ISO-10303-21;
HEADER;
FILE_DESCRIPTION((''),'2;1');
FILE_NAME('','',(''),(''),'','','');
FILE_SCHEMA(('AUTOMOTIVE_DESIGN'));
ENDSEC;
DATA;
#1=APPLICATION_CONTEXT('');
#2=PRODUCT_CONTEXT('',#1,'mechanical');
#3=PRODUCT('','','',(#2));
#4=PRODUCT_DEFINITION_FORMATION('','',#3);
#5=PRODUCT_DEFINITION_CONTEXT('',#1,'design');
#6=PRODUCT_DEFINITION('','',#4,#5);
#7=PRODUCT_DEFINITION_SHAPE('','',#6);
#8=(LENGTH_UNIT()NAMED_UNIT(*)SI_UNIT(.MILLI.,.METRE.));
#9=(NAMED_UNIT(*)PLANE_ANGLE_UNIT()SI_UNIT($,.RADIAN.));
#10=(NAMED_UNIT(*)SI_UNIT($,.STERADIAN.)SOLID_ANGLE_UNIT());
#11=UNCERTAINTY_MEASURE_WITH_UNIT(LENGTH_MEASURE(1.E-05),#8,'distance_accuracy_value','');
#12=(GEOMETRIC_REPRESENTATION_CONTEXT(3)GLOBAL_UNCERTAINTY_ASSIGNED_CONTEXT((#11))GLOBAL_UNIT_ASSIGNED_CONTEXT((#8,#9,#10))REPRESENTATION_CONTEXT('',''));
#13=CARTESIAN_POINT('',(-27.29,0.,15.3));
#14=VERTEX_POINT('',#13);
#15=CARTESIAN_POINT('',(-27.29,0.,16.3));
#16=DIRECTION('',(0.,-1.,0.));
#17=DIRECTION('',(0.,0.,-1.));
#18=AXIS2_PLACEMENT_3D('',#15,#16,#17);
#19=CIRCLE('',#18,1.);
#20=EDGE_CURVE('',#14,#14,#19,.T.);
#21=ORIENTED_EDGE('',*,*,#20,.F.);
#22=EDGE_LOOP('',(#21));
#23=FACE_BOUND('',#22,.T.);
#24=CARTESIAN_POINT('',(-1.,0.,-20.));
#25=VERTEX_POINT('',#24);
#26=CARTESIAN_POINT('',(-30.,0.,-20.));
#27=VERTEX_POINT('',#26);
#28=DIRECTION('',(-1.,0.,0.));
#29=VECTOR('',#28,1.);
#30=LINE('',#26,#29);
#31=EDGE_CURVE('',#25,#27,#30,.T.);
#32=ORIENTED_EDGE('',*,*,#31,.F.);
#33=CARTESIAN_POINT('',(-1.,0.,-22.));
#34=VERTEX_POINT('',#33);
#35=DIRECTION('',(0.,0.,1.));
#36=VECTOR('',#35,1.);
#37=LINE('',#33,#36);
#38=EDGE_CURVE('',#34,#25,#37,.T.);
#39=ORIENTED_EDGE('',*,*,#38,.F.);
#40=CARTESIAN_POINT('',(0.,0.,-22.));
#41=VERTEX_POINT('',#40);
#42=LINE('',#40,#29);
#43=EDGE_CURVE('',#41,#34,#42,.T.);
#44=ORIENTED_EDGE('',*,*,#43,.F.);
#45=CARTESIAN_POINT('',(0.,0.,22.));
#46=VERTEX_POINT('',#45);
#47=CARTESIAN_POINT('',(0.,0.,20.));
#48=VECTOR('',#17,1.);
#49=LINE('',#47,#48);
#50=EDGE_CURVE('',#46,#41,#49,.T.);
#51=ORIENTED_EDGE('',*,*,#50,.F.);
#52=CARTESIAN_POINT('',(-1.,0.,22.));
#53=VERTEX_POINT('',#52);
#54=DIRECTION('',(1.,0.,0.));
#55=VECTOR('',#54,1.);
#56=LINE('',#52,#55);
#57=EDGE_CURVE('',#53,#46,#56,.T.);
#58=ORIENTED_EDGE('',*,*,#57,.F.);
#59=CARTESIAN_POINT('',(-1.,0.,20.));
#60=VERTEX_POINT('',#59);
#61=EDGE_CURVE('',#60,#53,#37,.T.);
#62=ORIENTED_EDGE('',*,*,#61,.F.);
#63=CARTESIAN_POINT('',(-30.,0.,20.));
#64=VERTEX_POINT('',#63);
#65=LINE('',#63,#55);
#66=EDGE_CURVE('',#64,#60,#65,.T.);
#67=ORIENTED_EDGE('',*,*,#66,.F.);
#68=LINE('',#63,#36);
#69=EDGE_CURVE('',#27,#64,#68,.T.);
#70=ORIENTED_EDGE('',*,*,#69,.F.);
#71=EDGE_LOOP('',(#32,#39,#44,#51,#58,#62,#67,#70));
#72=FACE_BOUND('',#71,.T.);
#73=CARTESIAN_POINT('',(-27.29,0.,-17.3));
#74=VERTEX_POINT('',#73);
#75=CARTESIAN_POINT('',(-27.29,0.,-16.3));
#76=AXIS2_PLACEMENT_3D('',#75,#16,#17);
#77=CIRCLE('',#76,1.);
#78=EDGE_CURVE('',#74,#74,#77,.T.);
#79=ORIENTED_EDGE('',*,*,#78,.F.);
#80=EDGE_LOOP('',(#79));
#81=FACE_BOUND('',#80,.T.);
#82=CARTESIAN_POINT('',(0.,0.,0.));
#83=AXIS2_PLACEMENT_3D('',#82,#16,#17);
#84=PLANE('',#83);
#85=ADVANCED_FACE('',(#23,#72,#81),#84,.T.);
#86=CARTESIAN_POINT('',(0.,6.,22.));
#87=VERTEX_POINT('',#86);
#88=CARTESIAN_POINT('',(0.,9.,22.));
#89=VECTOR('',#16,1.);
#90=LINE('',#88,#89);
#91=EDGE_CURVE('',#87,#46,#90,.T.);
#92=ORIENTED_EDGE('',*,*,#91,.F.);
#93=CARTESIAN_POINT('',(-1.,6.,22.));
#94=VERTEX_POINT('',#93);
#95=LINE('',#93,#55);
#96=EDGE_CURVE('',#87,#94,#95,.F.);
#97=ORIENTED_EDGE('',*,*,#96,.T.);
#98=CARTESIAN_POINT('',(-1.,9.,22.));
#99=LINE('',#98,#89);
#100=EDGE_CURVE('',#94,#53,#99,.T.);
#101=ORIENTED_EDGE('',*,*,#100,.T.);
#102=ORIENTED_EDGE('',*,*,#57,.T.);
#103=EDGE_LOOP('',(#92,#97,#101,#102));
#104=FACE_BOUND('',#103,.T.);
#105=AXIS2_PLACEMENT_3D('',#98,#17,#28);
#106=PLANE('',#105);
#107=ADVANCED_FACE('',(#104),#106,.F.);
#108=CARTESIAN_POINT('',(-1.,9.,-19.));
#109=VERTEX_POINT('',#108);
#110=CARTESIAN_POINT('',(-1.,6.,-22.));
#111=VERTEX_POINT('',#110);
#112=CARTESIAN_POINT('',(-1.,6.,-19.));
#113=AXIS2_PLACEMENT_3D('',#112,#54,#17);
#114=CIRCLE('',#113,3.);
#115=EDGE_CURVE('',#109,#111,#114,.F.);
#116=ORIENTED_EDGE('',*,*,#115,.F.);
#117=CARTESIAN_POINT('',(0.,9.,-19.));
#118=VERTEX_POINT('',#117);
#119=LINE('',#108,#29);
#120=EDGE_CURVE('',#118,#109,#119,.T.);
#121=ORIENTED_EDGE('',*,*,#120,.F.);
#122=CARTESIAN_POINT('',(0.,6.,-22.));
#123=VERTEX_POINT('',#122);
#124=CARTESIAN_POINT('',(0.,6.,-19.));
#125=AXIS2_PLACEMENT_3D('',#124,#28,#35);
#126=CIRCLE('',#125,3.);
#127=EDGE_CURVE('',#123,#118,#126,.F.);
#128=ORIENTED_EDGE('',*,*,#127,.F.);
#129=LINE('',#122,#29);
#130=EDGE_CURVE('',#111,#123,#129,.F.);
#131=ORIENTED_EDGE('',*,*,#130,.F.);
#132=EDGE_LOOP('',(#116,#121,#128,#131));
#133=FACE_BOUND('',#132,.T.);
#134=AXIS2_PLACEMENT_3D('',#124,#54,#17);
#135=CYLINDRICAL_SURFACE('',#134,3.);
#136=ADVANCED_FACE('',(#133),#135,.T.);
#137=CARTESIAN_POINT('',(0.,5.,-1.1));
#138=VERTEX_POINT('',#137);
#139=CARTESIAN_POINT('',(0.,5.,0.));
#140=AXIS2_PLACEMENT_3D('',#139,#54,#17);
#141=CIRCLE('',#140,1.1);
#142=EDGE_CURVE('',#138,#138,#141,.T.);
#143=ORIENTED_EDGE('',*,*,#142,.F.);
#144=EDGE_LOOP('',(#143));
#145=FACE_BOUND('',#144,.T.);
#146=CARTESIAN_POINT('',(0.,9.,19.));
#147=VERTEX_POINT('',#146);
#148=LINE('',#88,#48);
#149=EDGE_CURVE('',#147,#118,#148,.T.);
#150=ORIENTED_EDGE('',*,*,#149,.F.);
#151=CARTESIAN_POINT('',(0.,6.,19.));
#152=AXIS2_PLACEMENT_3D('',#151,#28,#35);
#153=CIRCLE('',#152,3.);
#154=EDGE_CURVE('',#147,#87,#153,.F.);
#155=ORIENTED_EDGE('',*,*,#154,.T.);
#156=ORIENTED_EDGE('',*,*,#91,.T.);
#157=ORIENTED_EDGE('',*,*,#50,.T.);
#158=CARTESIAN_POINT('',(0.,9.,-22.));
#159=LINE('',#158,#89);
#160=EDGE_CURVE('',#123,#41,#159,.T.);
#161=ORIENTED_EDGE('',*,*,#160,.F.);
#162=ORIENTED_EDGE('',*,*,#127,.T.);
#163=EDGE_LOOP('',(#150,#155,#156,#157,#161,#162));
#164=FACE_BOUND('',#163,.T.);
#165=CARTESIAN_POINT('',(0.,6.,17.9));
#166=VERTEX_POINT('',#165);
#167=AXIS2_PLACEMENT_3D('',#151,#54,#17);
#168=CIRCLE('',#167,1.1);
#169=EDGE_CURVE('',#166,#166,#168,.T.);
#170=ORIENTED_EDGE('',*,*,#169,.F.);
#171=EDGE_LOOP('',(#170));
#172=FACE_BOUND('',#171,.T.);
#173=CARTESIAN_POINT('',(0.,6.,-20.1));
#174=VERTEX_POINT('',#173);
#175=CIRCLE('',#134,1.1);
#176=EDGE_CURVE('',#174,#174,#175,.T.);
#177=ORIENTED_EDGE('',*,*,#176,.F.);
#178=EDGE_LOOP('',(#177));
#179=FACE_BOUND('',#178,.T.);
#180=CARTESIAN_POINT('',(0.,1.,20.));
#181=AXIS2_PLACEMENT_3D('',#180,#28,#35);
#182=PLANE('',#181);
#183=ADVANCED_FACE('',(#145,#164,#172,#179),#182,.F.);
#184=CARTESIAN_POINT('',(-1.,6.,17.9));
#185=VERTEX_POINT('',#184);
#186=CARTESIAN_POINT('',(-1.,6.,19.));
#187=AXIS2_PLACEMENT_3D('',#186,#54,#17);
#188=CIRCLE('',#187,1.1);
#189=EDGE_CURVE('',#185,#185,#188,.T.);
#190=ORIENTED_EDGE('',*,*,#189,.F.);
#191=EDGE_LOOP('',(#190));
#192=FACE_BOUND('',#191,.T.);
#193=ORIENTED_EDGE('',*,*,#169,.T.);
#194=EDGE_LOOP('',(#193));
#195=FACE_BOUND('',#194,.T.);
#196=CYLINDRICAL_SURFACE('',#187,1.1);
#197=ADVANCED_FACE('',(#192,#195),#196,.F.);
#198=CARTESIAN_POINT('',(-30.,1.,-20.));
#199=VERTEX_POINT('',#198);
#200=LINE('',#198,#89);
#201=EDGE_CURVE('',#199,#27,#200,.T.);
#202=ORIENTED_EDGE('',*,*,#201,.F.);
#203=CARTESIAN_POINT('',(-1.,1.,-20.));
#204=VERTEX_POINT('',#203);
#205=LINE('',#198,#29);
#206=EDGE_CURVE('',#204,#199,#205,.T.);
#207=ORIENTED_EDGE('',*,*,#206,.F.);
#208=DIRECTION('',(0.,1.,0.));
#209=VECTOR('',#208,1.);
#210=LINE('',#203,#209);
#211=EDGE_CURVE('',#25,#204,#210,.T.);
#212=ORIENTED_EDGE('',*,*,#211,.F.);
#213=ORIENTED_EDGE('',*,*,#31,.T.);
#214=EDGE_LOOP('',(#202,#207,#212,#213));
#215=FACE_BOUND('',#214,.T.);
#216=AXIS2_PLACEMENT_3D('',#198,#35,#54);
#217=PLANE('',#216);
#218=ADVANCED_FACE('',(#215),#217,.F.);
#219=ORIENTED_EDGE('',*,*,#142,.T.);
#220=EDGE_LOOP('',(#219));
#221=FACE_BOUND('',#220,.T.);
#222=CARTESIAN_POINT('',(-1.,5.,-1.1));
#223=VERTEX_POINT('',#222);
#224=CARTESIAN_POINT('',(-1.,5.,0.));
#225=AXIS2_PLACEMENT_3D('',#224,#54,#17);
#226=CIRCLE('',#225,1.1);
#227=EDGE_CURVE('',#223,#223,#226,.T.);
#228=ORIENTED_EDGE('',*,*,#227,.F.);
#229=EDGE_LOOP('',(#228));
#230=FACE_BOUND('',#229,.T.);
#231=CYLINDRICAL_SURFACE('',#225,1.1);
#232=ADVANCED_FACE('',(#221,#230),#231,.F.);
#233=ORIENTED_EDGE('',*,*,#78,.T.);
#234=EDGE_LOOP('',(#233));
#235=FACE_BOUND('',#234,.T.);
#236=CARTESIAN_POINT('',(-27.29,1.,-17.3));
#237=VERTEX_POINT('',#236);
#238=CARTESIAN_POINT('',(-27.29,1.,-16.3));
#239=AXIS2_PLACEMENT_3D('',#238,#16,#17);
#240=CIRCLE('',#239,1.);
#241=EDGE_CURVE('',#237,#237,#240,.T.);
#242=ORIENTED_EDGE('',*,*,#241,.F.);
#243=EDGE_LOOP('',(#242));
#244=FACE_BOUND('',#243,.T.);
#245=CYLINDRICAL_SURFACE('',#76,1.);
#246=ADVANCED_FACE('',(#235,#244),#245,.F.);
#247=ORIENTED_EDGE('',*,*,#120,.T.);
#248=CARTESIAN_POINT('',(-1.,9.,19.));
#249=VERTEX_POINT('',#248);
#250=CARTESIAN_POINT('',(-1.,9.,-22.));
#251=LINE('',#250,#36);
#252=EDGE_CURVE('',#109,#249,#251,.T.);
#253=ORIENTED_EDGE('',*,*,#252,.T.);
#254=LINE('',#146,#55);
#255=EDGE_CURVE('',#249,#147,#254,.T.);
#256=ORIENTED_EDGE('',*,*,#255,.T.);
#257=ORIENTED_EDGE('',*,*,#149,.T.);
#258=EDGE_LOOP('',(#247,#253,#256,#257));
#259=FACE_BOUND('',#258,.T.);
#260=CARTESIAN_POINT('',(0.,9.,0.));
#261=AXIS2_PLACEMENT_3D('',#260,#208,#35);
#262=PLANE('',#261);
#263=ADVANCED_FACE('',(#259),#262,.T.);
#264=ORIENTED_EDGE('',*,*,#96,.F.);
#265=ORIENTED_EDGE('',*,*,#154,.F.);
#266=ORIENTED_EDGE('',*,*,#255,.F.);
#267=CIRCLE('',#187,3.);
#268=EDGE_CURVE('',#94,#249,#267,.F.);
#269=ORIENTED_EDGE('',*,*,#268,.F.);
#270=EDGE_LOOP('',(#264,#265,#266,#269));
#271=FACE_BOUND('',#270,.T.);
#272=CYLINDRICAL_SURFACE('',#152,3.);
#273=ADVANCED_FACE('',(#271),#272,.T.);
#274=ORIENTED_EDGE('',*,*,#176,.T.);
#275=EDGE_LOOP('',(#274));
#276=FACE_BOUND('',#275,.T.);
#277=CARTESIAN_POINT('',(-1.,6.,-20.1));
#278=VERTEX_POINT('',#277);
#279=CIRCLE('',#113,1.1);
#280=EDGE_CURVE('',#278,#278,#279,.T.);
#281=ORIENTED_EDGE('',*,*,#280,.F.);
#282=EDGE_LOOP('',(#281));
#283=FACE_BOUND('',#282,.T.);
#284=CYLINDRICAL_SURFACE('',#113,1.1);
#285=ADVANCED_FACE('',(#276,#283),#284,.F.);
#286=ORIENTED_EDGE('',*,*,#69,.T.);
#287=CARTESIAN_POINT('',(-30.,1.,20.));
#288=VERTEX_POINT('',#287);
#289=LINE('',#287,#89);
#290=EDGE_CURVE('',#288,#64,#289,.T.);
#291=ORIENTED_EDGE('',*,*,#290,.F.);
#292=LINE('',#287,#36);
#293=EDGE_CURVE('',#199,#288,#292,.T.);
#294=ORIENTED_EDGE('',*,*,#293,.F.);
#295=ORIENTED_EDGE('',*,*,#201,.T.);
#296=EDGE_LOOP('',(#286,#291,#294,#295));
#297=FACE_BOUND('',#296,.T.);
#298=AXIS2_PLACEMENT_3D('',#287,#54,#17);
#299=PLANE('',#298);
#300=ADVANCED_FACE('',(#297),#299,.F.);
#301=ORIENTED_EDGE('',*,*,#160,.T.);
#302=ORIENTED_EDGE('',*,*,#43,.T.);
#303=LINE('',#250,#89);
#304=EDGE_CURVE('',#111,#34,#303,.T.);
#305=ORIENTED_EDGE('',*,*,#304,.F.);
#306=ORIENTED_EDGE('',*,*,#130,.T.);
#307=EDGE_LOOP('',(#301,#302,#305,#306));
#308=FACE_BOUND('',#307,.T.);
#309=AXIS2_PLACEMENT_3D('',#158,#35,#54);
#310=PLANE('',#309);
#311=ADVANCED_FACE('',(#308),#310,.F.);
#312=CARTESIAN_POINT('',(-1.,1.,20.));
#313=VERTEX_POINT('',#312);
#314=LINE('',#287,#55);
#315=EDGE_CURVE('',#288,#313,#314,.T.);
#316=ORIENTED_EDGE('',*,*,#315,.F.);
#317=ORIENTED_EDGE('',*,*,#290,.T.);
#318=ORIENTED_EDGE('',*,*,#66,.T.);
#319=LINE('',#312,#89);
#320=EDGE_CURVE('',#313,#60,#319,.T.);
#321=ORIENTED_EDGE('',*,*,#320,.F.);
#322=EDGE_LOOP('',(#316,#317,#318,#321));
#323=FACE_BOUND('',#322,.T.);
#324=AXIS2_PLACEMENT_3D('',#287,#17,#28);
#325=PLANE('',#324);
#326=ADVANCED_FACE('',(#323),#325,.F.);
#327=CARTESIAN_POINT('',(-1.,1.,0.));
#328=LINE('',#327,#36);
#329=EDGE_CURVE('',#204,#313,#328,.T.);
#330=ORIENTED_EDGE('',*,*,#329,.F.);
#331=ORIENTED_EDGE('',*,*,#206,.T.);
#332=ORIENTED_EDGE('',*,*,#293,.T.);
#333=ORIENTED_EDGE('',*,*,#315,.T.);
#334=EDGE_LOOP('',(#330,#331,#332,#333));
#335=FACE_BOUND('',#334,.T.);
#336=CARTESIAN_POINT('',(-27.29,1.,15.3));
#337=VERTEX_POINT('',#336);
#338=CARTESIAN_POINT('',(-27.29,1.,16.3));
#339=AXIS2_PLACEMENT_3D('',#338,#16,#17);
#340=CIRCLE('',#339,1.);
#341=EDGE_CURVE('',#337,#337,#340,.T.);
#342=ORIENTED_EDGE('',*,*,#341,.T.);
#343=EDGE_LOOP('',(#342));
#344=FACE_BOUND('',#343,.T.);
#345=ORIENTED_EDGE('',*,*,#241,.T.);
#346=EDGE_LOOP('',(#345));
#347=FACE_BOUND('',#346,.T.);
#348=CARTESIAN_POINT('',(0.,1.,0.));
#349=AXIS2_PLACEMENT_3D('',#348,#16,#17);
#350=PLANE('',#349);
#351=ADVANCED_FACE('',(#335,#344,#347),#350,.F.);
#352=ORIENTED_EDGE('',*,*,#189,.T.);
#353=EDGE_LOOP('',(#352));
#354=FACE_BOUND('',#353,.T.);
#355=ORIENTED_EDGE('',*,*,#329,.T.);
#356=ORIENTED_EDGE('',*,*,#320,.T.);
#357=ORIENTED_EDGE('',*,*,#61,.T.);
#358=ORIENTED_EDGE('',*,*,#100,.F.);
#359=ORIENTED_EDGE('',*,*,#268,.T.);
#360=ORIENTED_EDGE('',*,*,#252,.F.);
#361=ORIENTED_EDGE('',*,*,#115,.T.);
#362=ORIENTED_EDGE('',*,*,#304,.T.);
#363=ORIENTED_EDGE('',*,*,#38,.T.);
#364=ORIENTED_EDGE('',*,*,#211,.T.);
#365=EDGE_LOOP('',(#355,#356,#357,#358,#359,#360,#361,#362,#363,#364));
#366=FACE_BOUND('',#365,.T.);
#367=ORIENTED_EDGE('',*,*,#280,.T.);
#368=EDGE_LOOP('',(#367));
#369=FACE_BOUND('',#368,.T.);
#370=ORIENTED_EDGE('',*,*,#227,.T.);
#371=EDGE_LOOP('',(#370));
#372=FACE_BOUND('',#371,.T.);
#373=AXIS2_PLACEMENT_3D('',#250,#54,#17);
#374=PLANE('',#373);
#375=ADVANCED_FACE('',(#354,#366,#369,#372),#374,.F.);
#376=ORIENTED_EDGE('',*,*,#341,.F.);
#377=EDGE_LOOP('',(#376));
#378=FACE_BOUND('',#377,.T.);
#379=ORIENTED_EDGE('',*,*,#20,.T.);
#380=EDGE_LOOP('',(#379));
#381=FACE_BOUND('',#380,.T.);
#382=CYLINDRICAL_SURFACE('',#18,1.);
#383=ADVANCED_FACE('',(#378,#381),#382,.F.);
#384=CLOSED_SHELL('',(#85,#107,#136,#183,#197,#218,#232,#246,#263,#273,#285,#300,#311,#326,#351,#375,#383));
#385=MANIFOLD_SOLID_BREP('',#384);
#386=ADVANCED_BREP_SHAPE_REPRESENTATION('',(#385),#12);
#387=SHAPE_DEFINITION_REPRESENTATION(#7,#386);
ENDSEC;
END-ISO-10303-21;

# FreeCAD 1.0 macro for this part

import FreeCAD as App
import Part
import Sketcher

V = App.Vector
Q = App.Units.Quantity


def edges_at(feature, points):
    """Names of the edges that pass closest to the given points."""
    edges = feature.Shape.Edges
    near = lambda p: min(range(len(edges)), key=lambda i: edges[i].distToShape(Part.Vertex(*p))[0])
    return sorted({f"Edge{near(p) + 1}" for p in points})

doc = App.newDocument("Part")
body = doc.addObject("PartDesign::Body", "Body")

sketch1 = body.newObject("Sketcher::SketchObject", "Sketch")
sketch1.AttachmentSupport = (doc.getObject("XZ_Plane"), [""])
sketch1.MapMode = "FlatFace"
sketch1.addGeometry(Part.LineSegment(V(-30, -20, 0), V(-30, 20, 0)), False)
sketch1.addGeometry(Part.LineSegment(V(-30, 20, 0), V(0, 20, 0)), False)
sketch1.addGeometry(Part.LineSegment(V(0, 20, 0), V(0, -20, 0)), False)
sketch1.addGeometry(Part.LineSegment(V(0, -20, 0), V(-30, -20, 0)), False)
sketch1.addConstraint(Sketcher.Constraint("Coincident", 0, 2, 1, 1))
sketch1.addConstraint(Sketcher.Constraint("Coincident", 1, 2, 2, 1))
sketch1.addConstraint(Sketcher.Constraint("Coincident", 2, 2, 3, 1))
sketch1.addConstraint(Sketcher.Constraint("Coincident", 3, 2, 0, 1))
sketch1.addConstraint(Sketcher.Constraint("Vertical", 0))
sketch1.addConstraint(Sketcher.Constraint("Horizontal", 1))
sketch1.addConstraint(Sketcher.Constraint("Vertical", 2))
sketch1.addConstraint(Sketcher.Constraint("Horizontal", 3))
sketch1.addConstraint(Sketcher.Constraint("Symmetric", 1, 2, 2, 2, -1, 1))
sketch1.addConstraint(Sketcher.Constraint("DistanceX", 1, 1, 1, 2, Q("30 mm")))
sketch1.addConstraint(Sketcher.Constraint("DistanceY", 0, 1, 0, 2, Q("40 mm")))
pad1 = body.newObject("PartDesign::Pad", "Pad")
pad1.Profile = sketch1
pad1.Length = 1
pad1.Reversed = True

sketch2 = body.newObject("Sketcher::SketchObject", "Sketch001")
sketch2.AttachmentSupport = (doc.getObject("XZ_Plane"), [""])
sketch2.MapMode = "FlatFace"
sketch2.addGeometry(Part.LineSegment(V(-1, -22, 0), V(-1, 22, 0)), False)
sketch2.addGeometry(Part.LineSegment(V(-1, 22, 0), V(0, 22, 0)), False)
sketch2.addGeometry(Part.LineSegment(V(0, 22, 0), V(0, -22, 0)), False)
sketch2.addGeometry(Part.LineSegment(V(0, -22, 0), V(-1, -22, 0)), False)
sketch2.addConstraint(Sketcher.Constraint("Coincident", 0, 2, 1, 1))
sketch2.addConstraint(Sketcher.Constraint("Coincident", 1, 2, 2, 1))
sketch2.addConstraint(Sketcher.Constraint("Coincident", 2, 2, 3, 1))
sketch2.addConstraint(Sketcher.Constraint("Coincident", 3, 2, 0, 1))
sketch2.addConstraint(Sketcher.Constraint("Vertical", 0))
sketch2.addConstraint(Sketcher.Constraint("Horizontal", 1))
sketch2.addConstraint(Sketcher.Constraint("Vertical", 2))
sketch2.addConstraint(Sketcher.Constraint("Horizontal", 3))
sketch2.addConstraint(Sketcher.Constraint("Symmetric", 1, 2, 2, 2, -1, 1))
sketch2.addConstraint(Sketcher.Constraint("DistanceX", 1, 1, 1, 2, Q("1 mm")))
sketch2.addConstraint(Sketcher.Constraint("DistanceY", 0, 1, 0, 2, Q("44 mm")))
pad2 = body.newObject("PartDesign::Pad", "Pad001")
pad2.Profile = sketch2
pad2.Length = 9
pad2.Reversed = True

sketch3 = body.newObject("Sketcher::SketchObject", "Sketch002")
sketch3.AttachmentSupport = (doc.getObject("YZ_Plane"), [""])
sketch3.MapMode = "FlatFace"
sketch3.addGeometry(Part.Circle(V(6, 19, 0), V(0, 0, 1), 1.1), False)
sketch3.addGeometry(Part.Circle(V(6, -19, 0), V(0, 0, 1), 1.1), False)
sketch3.addGeometry(Part.Circle(V(5, 0, 0), V(0, 0, 1), 1.1), False)
sketch3.addConstraint(Sketcher.Constraint("Equal", 0, 1))
sketch3.addConstraint(Sketcher.Constraint("Equal", 1, 2))
sketch3.addConstraint(Sketcher.Constraint("Symmetric", 0, 3, 1, 3, -1))
sketch3.addConstraint(Sketcher.Constraint("PointOnObject", 2, 3, -1))
sketch3.addConstraint(Sketcher.Constraint("Diameter", 0, Q("2.2 mm")))
sketch3.addConstraint(Sketcher.Constraint("DistanceX", -1, 1, 0, 3, Q("6 mm")))
sketch3.addConstraint(Sketcher.Constraint("DistanceY", -1, 1, 0, 3, Q("19 mm")))
sketch3.addConstraint(Sketcher.Constraint("DistanceX", -1, 1, 2, 3, Q("5 mm")))
pocket1 = body.newObject("PartDesign::Pocket", "Pocket")
pocket1.Profile = sketch3
pocket1.Length = 1

sketch4 = body.newObject("Sketcher::SketchObject", "Sketch003")
sketch4.AttachmentSupport = (doc.getObject("XZ_Plane"), [""])
sketch4.MapMode = "FlatFace"
sketch4.addGeometry(Part.Circle(V(-27.3, 16.3, 0), V(0, 0, 1), 1), False)
sketch4.addGeometry(Part.Circle(V(-27.3, -16.3, 0), V(0, 0, 1), 1), False)
sketch4.addConstraint(Sketcher.Constraint("Equal", 0, 1))
sketch4.addConstraint(Sketcher.Constraint("Symmetric", 0, 3, 1, 3, -1))
sketch4.addConstraint(Sketcher.Constraint("Diameter", 0, Q("2 mm")))
sketch4.addConstraint(Sketcher.Constraint("DistanceY", -1, 1, 0, 3, Q("16.3 mm")))
sketch4.addConstraint(Sketcher.Constraint("DistanceX", 0, 3, -1, 1, Q("27.29 mm")))
doc.recompute()
hole = body.newObject("PartDesign::Hole", "Hole")
hole.Profile = sketch4
hole.ThreadType = "None"
hole.Diameter = 2
hole.DepthType = "Dimension"
hole.Depth = 2.6
hole.DrillPoint = "Angled"
hole.DrillPointAngle = 118
doc.recompute()

fillet = body.newObject("PartDesign::Fillet", "Fillet")
fillet.Base = (hole, edges_at(hole, [(-0.5, 9, -22), (-0.5, 9, 22)]))
fillet.Radius = 3

doc.recompute()
